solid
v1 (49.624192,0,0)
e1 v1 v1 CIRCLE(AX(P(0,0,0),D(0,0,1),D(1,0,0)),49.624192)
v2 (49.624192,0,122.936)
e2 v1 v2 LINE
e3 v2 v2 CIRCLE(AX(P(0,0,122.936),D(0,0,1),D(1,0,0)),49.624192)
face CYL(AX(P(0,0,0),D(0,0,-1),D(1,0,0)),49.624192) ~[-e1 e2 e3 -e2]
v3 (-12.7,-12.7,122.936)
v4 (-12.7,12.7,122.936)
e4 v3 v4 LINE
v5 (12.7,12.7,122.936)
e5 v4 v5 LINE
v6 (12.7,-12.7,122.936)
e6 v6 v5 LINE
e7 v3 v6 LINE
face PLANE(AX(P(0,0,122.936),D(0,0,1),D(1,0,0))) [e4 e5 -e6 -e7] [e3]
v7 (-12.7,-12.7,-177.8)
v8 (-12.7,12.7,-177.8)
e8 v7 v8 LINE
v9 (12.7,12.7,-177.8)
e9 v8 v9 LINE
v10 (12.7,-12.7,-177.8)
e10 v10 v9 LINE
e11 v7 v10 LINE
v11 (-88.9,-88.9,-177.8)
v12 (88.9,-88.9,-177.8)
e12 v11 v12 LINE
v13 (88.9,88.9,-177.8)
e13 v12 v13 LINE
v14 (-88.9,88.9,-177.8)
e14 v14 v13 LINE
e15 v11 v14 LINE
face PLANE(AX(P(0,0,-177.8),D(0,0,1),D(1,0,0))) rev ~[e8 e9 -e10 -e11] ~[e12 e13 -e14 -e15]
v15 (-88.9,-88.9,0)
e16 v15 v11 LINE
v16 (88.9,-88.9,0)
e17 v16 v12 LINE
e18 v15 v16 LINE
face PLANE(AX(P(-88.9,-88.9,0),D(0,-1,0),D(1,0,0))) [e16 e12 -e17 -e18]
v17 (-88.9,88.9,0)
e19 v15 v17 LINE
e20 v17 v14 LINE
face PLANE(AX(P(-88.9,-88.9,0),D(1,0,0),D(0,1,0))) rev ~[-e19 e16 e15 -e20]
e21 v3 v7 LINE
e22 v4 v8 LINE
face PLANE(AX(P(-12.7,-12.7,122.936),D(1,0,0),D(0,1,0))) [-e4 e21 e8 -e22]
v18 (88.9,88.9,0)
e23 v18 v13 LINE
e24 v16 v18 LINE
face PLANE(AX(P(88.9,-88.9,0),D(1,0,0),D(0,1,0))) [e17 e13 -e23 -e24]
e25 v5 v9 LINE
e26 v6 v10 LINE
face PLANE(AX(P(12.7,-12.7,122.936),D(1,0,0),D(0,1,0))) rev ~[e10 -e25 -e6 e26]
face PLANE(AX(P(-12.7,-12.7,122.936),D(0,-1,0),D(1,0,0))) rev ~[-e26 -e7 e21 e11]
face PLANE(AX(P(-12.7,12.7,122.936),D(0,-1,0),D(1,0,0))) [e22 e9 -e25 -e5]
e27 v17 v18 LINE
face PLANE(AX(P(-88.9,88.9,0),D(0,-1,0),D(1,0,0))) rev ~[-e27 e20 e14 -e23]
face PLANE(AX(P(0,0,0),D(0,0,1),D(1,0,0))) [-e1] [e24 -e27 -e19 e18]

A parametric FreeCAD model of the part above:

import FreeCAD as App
import Part
import Sketcher

V = App.Vector
Q = App.Units.Quantity

doc = App.newDocument("Part")
body = doc.addObject("PartDesign::Body", "Body")

sketch1 = body.newObject("Sketcher::SketchObject", "Sketch")
sketch1.AttachmentSupport = (doc.getObject("XY_Plane"), [""])
sketch1.MapMode = "FlatFace"
sketch1.addGeometry(Part.Circle(V(0, 0, 0), V(0, 0, 1), 50), False)
sketch1.addConstraint(Sketcher.Constraint("Coincident", 0, 3, -1, 1))
sketch1.addConstraint(Sketcher.Constraint("Diameter", 0, 99.248384))
pad1 = body.newObject("PartDesign::Pad", "Pad")
pad1.Profile = sketch1
pad1.Length = Q("4.84 in")

sketch2 = body.newObject("Sketcher::SketchObject", "Sketch001")
sketch2.AttachmentSupport = (doc.getObject("XY_Plane"), [""])
sketch2.MapMode = "FlatFace"
sketch2.addGeometry(Part.LineSegment(V(-89, 89, 0), V(-89, -89, 0)), False)
sketch2.addGeometry(Part.LineSegment(V(-89, -89, 0), V(89, -89, 0)), False)
sketch2.addGeometry(Part.LineSegment(V(89, -89, 0), V(89, 89, 0)), False)
sketch2.addGeometry(Part.LineSegment(V(89, 89, 0), V(-89, 89, 0)), False)
sketch2.addConstraint(Sketcher.Constraint("Coincident", 0, 2, 1, 1))
sketch2.addConstraint(Sketcher.Constraint("Coincident", 1, 2, 2, 1))
sketch2.addConstraint(Sketcher.Constraint("Coincident", 2, 2, 3, 1))
sketch2.addConstraint(Sketcher.Constraint("Coincident", 3, 2, 0, 1))
sketch2.addConstraint(Sketcher.Constraint("Vertical", 0))
sketch2.addConstraint(Sketcher.Constraint("Horizontal", 1))
sketch2.addConstraint(Sketcher.Constraint("Vertical", 2))
sketch2.addConstraint(Sketcher.Constraint("Horizontal", 3))
sketch2.addConstraint(Sketcher.Constraint("Symmetric", 0, 2, 2, 2, -1, 1))
sketch2.addConstraint(Sketcher.Constraint("Equal", 3, 0))
sketch2.addConstraint(Sketcher.Constraint("DistanceX", 1, 1, 1, 2, Q("7 in")))
pad2 = body.newObject("PartDesign::Pad", "Pad001")
pad2.Profile = sketch2
pad2.Length = Q("7 in")
pad2.Reversed = True

sketch3 = body.newObject("Sketcher::SketchObject", "Sketch002")
sketch3.AttachmentSupport = (doc.getObject("XY_Plane"), [""])
sketch3.MapMode = "FlatFace"
sketch3.AttachmentOffset = App.Placement(V(0, 0, 4.84 * 25.4), App.Rotation())
sketch3.addGeometry(Part.LineSegment(V(-13, 13, 0), V(-13, -13, 0)), False)
sketch3.addGeometry(Part.LineSegment(V(-13, -13, 0), V(13, -13, 0)), False)
sketch3.addGeometry(Part.LineSegment(V(13, -13, 0), V(13, 13, 0)), False)
sketch3.addGeometry(Part.LineSegment(V(13, 13, 0), V(-13, 13, 0)), False)
sketch3.addConstraint(Sketcher.Constraint("Coincident", 0, 2, 1, 1))
sketch3.addConstraint(Sketcher.Constraint("Coincident", 1, 2, 2, 1))
sketch3.addConstraint(Sketcher.Constraint("Coincident", 2, 2, 3, 1))
sketch3.addConstraint(Sketcher.Constraint("Coincident", 3, 2, 0, 1))
sketch3.addConstraint(Sketcher.Constraint("Vertical", 0))
sketch3.addConstraint(Sketcher.Constraint("Horizontal", 1))
sketch3.addConstraint(Sketcher.Constraint("Vertical", 2))
sketch3.addConstraint(Sketcher.Constraint("Horizontal", 3))
sketch3.addConstraint(Sketcher.Constraint("Symmetric", 0, 2, 2, 2, -1, 1))
sketch3.addConstraint(Sketcher.Constraint("Equal", 3, 0))
sketch3.addConstraint(Sketcher.Constraint("DistanceX", 1, 1, 1, 2, Q("1 in")))
pocket1 = body.newObject("PartDesign::Pocket", "Pocket")
pocket1.Profile = sketch3
pocket1.Length = Q("14.84 in")

doc.recompute()
